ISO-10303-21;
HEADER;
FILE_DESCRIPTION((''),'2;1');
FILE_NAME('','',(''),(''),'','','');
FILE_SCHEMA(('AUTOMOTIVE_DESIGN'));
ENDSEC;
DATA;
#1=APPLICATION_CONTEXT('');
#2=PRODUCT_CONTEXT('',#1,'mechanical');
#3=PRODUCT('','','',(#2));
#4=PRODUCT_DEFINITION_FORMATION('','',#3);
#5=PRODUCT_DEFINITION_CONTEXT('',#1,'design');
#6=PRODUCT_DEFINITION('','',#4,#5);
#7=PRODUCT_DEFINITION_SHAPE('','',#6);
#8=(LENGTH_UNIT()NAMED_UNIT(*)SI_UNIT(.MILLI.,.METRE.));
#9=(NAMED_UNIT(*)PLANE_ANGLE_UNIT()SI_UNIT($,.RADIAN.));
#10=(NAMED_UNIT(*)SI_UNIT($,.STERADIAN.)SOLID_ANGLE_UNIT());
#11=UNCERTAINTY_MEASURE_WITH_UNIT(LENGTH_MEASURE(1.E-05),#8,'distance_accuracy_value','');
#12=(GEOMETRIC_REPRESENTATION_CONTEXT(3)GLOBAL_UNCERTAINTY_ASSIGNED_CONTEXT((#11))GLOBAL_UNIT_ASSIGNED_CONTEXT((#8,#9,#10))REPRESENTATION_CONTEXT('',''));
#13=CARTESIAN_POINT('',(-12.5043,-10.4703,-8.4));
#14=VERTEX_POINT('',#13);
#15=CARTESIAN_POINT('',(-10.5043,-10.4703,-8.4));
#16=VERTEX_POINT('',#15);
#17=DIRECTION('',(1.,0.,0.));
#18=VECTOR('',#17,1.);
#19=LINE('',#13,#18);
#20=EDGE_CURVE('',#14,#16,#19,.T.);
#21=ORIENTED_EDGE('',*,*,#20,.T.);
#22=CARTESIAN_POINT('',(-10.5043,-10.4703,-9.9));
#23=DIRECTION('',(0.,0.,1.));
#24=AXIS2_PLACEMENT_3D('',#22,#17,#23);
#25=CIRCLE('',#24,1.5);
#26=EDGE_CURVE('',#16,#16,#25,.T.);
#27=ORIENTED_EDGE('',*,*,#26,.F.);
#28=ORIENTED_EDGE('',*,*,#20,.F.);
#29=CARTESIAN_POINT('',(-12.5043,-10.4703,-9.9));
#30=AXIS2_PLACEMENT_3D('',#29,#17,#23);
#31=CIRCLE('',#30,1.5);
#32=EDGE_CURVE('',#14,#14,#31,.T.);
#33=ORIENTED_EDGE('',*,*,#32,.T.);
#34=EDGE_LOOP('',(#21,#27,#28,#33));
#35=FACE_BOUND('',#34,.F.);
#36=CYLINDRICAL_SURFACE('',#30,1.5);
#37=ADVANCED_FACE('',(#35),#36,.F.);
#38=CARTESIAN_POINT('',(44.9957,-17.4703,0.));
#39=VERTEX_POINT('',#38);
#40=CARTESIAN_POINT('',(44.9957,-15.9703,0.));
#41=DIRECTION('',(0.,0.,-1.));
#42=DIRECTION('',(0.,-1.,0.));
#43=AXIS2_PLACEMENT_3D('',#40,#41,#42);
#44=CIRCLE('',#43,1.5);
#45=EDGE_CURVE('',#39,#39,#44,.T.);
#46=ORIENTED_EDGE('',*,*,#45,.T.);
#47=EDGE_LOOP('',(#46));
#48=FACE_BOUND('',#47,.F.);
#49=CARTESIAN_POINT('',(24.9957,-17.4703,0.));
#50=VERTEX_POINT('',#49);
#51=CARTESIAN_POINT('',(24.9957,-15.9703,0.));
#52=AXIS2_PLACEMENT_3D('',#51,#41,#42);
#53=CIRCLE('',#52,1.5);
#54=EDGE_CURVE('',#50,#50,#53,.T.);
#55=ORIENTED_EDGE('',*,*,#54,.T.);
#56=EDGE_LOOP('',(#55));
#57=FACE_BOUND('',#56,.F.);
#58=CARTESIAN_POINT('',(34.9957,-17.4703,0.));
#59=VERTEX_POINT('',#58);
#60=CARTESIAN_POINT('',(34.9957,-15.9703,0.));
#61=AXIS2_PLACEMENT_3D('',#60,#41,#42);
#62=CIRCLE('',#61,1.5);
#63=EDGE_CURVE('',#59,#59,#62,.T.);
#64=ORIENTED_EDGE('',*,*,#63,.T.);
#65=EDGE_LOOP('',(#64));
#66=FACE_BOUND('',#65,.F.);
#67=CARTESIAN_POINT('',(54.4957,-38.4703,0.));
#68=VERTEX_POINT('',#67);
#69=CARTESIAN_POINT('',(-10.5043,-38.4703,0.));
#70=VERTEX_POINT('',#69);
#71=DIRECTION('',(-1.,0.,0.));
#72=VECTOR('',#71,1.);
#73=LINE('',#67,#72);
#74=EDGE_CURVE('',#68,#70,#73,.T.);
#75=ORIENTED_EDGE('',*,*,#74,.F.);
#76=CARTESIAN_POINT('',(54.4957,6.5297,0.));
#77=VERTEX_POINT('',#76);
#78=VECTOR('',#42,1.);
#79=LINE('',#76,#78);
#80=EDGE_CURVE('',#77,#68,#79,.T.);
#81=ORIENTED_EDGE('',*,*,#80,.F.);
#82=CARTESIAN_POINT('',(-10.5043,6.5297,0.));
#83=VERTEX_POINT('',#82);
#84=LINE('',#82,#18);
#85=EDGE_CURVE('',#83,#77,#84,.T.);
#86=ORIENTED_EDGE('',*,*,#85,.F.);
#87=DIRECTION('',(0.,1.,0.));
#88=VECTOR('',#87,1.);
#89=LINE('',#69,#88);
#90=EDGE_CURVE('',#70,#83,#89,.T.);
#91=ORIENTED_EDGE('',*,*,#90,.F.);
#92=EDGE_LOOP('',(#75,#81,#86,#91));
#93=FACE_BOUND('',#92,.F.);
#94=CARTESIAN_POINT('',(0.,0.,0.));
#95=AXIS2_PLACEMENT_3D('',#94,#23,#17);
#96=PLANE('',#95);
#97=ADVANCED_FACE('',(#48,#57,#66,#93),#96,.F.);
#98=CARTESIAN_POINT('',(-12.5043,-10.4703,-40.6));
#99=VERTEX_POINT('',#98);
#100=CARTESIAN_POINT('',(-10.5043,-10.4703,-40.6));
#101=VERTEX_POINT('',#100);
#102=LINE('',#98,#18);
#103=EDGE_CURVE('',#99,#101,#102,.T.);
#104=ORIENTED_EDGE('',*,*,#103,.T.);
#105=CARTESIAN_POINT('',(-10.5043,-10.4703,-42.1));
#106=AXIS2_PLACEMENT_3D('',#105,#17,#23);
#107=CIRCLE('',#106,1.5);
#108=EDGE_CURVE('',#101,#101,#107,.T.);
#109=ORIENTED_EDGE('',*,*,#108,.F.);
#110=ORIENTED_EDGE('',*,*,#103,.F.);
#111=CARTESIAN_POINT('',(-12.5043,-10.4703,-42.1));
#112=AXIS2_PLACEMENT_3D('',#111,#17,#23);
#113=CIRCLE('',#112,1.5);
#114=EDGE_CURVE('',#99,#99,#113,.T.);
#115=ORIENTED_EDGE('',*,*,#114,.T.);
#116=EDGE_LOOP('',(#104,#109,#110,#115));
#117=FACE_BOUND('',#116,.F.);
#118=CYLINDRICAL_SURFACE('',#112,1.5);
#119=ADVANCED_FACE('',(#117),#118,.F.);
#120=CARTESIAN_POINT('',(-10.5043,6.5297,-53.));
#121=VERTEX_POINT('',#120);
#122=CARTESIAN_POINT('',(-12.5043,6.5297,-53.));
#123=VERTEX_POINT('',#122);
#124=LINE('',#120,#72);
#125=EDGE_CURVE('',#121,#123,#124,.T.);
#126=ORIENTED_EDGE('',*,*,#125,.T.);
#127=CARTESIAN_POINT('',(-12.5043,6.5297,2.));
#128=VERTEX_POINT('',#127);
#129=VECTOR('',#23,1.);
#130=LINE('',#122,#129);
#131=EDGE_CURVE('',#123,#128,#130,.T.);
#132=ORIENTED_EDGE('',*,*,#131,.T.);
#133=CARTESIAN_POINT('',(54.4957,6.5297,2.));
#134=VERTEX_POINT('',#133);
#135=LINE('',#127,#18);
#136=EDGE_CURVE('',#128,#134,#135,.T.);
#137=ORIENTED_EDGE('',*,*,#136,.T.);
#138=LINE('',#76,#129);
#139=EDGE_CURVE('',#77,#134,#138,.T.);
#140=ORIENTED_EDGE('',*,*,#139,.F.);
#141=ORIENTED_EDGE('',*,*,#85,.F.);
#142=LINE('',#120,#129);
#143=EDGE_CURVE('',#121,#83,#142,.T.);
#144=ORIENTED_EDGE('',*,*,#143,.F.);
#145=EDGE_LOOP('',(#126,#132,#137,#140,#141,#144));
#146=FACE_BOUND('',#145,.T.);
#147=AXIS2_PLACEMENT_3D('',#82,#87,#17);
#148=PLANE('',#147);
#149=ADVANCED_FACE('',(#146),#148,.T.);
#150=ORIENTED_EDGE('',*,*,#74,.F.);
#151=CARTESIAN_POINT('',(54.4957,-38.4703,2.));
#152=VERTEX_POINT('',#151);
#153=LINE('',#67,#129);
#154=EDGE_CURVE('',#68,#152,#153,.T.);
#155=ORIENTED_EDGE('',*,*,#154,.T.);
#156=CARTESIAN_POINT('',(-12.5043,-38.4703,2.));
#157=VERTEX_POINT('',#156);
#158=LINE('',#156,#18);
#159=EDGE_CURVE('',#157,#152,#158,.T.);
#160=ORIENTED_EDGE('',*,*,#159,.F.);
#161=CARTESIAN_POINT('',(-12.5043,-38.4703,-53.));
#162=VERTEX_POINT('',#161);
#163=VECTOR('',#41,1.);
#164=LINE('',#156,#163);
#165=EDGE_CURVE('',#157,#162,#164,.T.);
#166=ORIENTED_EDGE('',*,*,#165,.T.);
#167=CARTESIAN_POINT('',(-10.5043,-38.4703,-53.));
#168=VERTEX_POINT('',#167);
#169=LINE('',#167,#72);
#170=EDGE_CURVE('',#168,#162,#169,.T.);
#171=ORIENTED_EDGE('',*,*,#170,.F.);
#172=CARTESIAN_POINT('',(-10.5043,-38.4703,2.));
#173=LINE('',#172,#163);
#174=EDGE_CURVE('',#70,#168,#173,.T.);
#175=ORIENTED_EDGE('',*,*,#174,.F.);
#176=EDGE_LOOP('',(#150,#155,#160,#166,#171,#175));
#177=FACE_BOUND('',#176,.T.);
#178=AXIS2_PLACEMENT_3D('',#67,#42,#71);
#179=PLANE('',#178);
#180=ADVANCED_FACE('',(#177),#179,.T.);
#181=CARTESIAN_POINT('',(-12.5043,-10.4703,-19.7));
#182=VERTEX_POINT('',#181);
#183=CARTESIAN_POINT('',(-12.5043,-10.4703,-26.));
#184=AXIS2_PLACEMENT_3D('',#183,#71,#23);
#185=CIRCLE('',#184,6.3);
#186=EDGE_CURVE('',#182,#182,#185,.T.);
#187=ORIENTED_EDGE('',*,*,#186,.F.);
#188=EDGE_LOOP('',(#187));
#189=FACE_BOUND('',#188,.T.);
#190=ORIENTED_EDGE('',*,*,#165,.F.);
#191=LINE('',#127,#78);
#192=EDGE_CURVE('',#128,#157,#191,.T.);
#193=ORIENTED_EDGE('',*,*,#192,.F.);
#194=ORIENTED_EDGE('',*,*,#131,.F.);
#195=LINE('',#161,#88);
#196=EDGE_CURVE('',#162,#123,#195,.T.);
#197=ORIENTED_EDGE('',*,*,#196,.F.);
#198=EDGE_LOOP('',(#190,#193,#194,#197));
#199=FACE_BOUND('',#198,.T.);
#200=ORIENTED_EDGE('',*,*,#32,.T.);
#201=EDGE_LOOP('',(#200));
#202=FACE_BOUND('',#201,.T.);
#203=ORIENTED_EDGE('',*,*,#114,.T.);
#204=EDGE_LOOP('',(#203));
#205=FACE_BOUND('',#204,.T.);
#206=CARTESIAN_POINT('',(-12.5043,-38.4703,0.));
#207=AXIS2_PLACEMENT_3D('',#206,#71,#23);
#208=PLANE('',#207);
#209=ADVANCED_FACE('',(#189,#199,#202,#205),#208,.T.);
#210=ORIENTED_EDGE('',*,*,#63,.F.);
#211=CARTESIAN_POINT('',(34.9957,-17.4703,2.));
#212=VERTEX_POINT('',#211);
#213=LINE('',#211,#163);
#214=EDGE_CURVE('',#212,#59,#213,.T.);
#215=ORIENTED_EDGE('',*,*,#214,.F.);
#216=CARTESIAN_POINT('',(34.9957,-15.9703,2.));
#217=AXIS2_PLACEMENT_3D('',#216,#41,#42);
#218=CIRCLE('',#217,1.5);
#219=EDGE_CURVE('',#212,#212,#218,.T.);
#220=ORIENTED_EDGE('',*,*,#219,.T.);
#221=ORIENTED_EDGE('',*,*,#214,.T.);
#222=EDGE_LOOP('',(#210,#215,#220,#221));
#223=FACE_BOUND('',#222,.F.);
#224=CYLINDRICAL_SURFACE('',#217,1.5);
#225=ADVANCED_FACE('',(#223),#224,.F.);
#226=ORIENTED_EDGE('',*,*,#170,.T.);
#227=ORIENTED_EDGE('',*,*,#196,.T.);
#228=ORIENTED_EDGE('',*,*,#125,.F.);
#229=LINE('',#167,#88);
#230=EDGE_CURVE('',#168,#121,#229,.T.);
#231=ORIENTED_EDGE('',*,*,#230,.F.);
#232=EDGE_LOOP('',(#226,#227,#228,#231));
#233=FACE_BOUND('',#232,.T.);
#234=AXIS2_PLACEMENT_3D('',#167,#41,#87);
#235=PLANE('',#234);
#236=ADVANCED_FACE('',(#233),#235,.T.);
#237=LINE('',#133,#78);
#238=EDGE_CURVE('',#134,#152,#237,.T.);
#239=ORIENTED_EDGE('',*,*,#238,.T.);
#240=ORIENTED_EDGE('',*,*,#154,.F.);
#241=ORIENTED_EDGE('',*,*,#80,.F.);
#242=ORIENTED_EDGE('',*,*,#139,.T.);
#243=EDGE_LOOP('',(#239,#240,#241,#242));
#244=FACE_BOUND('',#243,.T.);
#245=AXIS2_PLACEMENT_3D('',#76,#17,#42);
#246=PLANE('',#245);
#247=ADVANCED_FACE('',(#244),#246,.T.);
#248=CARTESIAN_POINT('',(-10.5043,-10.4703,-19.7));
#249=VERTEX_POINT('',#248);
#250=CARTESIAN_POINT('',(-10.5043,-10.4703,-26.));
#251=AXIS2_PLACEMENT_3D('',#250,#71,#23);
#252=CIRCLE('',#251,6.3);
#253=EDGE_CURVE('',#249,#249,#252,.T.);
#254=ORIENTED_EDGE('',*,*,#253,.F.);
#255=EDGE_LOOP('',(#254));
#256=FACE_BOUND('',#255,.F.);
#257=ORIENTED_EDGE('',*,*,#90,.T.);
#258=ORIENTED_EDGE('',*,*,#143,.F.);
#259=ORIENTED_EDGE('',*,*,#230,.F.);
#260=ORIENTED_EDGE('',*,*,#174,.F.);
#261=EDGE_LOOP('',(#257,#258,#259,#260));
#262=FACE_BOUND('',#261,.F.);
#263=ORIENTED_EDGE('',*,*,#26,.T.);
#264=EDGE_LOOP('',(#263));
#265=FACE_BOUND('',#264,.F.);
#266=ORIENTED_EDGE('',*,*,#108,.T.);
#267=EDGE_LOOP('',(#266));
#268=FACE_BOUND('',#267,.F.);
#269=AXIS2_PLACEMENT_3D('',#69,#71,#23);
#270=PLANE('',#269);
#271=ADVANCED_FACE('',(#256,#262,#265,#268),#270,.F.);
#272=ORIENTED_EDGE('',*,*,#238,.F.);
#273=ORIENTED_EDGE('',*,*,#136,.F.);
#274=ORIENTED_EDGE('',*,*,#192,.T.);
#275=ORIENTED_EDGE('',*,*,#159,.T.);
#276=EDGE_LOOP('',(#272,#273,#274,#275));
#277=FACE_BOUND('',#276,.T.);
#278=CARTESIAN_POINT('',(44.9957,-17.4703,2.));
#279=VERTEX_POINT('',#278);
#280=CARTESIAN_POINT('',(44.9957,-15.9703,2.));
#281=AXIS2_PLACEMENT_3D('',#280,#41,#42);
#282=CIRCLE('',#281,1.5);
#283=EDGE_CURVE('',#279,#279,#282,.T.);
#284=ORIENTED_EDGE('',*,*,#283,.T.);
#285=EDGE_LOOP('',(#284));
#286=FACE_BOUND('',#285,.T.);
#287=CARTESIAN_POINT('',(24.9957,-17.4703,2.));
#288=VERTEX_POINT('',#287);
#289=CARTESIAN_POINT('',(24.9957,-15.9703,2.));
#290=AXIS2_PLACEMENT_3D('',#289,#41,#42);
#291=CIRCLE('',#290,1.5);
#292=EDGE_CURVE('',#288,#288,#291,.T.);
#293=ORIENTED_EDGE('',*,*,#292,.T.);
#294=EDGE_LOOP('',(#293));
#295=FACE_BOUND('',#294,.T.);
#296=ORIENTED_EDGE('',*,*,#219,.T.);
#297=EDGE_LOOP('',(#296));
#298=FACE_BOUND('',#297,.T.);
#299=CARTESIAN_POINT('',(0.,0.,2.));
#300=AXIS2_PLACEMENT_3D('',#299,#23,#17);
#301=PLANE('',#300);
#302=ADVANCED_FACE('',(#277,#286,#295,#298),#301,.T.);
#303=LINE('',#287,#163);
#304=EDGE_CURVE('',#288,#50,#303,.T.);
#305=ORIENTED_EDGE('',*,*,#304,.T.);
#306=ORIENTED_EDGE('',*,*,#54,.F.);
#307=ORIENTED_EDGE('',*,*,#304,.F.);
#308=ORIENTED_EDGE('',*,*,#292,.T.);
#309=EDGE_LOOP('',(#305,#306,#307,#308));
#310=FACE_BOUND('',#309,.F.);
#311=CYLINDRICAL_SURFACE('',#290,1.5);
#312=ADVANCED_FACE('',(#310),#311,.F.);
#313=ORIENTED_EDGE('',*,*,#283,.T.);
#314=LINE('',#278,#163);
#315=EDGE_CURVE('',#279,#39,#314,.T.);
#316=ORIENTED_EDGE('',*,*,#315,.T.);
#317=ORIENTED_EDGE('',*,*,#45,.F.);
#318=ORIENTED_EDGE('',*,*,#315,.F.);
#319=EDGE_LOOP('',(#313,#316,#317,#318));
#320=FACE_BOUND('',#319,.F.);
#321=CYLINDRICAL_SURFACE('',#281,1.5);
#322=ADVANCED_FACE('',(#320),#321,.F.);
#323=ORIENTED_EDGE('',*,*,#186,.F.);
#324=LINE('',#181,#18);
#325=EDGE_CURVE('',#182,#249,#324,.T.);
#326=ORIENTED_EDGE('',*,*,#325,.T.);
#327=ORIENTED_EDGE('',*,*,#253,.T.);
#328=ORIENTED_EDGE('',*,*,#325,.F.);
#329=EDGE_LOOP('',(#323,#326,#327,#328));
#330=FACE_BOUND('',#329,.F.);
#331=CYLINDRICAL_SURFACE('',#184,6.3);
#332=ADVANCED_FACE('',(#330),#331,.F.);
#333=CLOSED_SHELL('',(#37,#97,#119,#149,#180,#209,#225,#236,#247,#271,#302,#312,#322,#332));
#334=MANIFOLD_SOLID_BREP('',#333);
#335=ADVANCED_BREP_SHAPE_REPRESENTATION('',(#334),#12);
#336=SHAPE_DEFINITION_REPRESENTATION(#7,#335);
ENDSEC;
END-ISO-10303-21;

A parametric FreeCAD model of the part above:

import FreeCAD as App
import Part
import Sketcher

V = App.Vector


def add_polygon(sketch, points):
    """Adds a closed chain of lines whose ends are joined by coincident constraints."""
    first, n = sketch.GeometryCount, len(points)
    for a, b in zip(points, points[1:] + points[:1]):
        sketch.addGeometry(Part.LineSegment(App.Vector(*a, 0), App.Vector(*b, 0)), False)
    for i in range(n):
        sketch.addConstraint(Sketcher.Constraint("Coincident", first + i, 2, first + (i + 1) % n, 1))

doc = App.newDocument("Part")
body = doc.addObject("PartDesign::Body", "Body")

# Sketch on XY plane
sketch1 = body.newObject("Sketcher::SketchObject", "Sketch")
sketch1.AttachmentSupport = (doc.getObject("XY_Plane"), [""])
sketch1.MapMode = "FlatFace"
add_polygon(sketch1, [(54.4957, 6.5297), (-10.5043, 6.5297), (-10.5043, -38.4703), (54.4957, -38.4703)])  # lines 0-3
sketch1.addConstraint([
    Sketcher.Constraint("Horizontal", 0),
    Sketcher.Constraint("Vertical", 1),
    Sketcher.Constraint("Horizontal", 2),
    Sketcher.Constraint("Vertical", 3),
    Sketcher.Constraint("DistanceX", 0, 2, 0, 1, 65.0),
    Sketcher.Constraint("DistanceY", 1, 2, 1, 1, 45.0),
    Sketcher.Constraint("DistanceX", 0, 2, -1, 1, 10.5043),
    Sketcher.Constraint("DistanceY", -1, 1, 0, 2, 6.5297),
])
pad1 = body.newObject("PartDesign::Pad", "Pad")
pad1.Profile = sketch1
pad1.Length = 2

# Sketch on YZ plane
sketch2 = body.newObject("Sketcher::SketchObject", "Sketch001")
sketch2.AttachmentSupport = (doc.getObject("YZ_Plane"), [""])
sketch2.MapMode = "FlatFace"
sketch2.AttachmentOffset = App.Placement(V(0, 0, -10.5043), App.Rotation())
add_polygon(sketch2, [(6.5297, 2), (6.5297, -53), (-38.4703, -53), (-38.4703, 2)])  # lines 0-3
sketch2.addConstraint([
    Sketcher.Constraint("Vertical", 0),
    Sketcher.Constraint("Horizontal", 1),
    Sketcher.Constraint("Vertical", 2),
    Sketcher.Constraint("Horizontal", 3),
    Sketcher.Constraint("DistanceX", 1, 2, 1, 1, 45.0),
    Sketcher.Constraint("DistanceY", 0, 2, 0, 1, 55.0),
    Sketcher.Constraint("DistanceY", 0, 2, -1, 1, 53.0),
    Sketcher.Constraint("DistanceX", -1, 1, 0, 2, 6.5297),
])
pad2 = body.newObject("PartDesign::Pad", "Pad001")
pad2.Profile = sketch2
pad2.Length = 2
pad2.Reversed = True

# Sketch on YZ plane
sketch3 = body.newObject("Sketcher::SketchObject", "Sketch002")
sketch3.AttachmentSupport = (doc.getObject("YZ_Plane"), [""])
sketch3.MapMode = "FlatFace"
sketch3.AttachmentOffset = App.Placement(V(0, 0, -12.5043), App.Rotation())
sketch3.addGeometry(Part.Circle(V(-10.4703, -26, 0), V(0, 0, 1), 6.3), False)
sketch3.addConstraint([
    Sketcher.Constraint("Diameter", 0, 12.6),
    Sketcher.Constraint("DistanceY", 0, 3, -1, 1, 26.0),
    Sketcher.Constraint("DistanceX", 0, 3, -1, 1, 10.4703),
])
pocket1 = body.newObject("PartDesign::Pocket", "Pocket")
pocket1.Profile = sketch3
pocket1.Length = 2
pocket1.Reversed = True

# Sketch on YZ plane
sketch4 = body.newObject("Sketcher::SketchObject", "Sketch003")
sketch4.AttachmentSupport = (doc.getObject("YZ_Plane"), [""])
sketch4.MapMode = "FlatFace"
sketch4.AttachmentOffset = App.Placement(V(0, 0, -12.5043), App.Rotation())
sketch4.addGeometry([
    Part.Circle(V(-10.4703, -42.1, 0), V(0, 0, 1), 1.5),
    Part.Circle(V(-10.4703, -9.9, 0), V(0, 0, 1), 1.5),
], False)
sketch4.addConstraint([
    Sketcher.Constraint("Equal", 0, 1),
    Sketcher.Constraint("Vertical", 0, 3, 1, 3),
    Sketcher.Constraint("Diameter", 0, 3.0),
    Sketcher.Constraint("DistanceY", 0, 3, -1, 1, 42.1),
    Sketcher.Constraint("DistanceY", 1, 3, -1, 1, 9.9),
    Sketcher.Constraint("DistanceX", 0, 3, -1, 1, 10.4703),
])
doc.recompute()
hole = body.newObject("PartDesign::Hole", "Hole")
hole.Profile = sketch4
hole.ThreadType = "None"
hole.Diameter = 3
hole.DepthType = "Dimension"
hole.Depth = 2
hole.DrillPoint = "Flat"
hole.Reversed = True

# Sketch on XY plane
sketch5 = body.newObject("Sketcher::SketchObject", "Sketch004")
sketch5.AttachmentSupport = (doc.getObject("XY_Plane"), [""])
sketch5.MapMode = "FlatFace"
sketch5.AttachmentOffset = App.Placement(V(0, 0, 2), App.Rotation())
sketch5.addGeometry([
    Part.Circle(V(24.9957, -15.9703, 0), V(0, 0, 1), 1.5),
    Part.Circle(V(34.9957, -15.9703, 0), V(0, 0, 1), 1.5),
    Part.Circle(V(44.9957, -15.9703, 0), V(0, 0, 1), 1.5),
], False)
sketch5.addConstraint([
    Sketcher.Constraint("Equal", 0, 1),
    Sketcher.Constraint("Equal", 1, 2),
    Sketcher.Constraint("Horizontal", 0, 3, 1, 3),
    Sketcher.Constraint("Horizontal", 1, 3, 2, 3),
    Sketcher.Constraint("Diameter", 0, 3.0),
    Sketcher.Constraint("DistanceX", 0, 3, 1, 3, 10.0),
    Sketcher.Constraint("DistanceX", 1, 3, 2, 3, 10.0),
    Sketcher.Constraint("DistanceX", -1, 1, 0, 3, 24.9957),
    Sketcher.Constraint("DistanceY", 0, 3, -1, 1, 15.9703),
])
doc.recompute()
hole2 = body.newObject("PartDesign::Hole", "Hole001")
hole2.Profile = sketch5
hole2.ThreadType = "None"
hole2.Diameter = 3
hole2.DepthType = "Dimension"
hole2.Depth = 2
hole2.DrillPoint = "Flat"

doc.recompute()
